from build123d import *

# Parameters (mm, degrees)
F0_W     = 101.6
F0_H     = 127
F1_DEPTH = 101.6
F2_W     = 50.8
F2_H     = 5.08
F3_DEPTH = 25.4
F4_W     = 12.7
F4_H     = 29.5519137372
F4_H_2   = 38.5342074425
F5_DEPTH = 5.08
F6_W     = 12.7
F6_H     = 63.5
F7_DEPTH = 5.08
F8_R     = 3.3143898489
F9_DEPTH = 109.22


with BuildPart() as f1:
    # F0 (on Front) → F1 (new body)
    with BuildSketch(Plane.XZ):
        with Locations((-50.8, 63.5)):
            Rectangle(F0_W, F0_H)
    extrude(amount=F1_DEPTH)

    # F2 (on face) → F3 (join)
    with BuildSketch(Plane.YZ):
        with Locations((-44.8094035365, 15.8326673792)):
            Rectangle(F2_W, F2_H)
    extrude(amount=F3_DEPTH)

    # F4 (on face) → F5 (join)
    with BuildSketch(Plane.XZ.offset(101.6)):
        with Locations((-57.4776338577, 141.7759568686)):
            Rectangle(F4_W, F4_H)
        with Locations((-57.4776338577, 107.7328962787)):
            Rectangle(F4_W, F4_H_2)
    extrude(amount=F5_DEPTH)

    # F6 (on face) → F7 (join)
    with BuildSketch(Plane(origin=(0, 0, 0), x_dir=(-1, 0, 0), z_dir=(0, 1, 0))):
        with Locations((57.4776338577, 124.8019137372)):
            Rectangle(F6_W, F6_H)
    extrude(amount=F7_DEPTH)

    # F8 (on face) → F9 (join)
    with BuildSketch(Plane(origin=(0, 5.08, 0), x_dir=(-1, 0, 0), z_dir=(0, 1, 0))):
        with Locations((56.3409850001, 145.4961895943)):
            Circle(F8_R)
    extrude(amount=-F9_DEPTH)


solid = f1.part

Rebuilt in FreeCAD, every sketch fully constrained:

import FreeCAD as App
import Part
import Sketcher
from FreeCAD import Vector
Q = App.Units.Quantity

doc = App.newDocument("Part")
body = doc.addObject("PartDesign::Body", "Body")

# Sketch on XZ plane
sketch1 = body.newObject("Sketcher::SketchObject", "Sketch")
sketch1.AttachmentSupport = (doc.getObject("XZ_Plane"), [""])
sketch1.MapMode = "FlatFace"
sketch1.addGeometry([
    Part.LineSegment(Vector(-101.6, 127, 0), Vector(-101.6, 0, 0)),
    Part.LineSegment(Vector(-101.6, 0, 0), Vector(0, 0, 0)),
    Part.LineSegment(Vector(0, 0, 0), Vector(0, 127, 0)),
    Part.LineSegment(Vector(0, 127, 0), Vector(-101.6, 127, 0)),
], False)
sketch1.addConstraint([
    Sketcher.Constraint("Coincident", 0, 2, 1, 1),
    Sketcher.Constraint("Coincident", 1, 2, 2, 1),
    Sketcher.Constraint("Coincident", 2, 2, 3, 1),
    Sketcher.Constraint("Coincident", 3, 2, 0, 1),
    Sketcher.Constraint("Vertical", 0),
    Sketcher.Constraint("Horizontal", 1),
    Sketcher.Constraint("Vertical", 2),
    Sketcher.Constraint("Horizontal", 3),
    Sketcher.Constraint("Coincident", 1, 2, -1, 1),
    Sketcher.Constraint("DistanceX", 1, 1, 1, 2, Q("4 in")),
    Sketcher.Constraint("DistanceY", 0, 2, 0, 1, Q("5 in")),
])
pad1 = body.newObject("PartDesign::Pad", "Pad")
pad1.Profile = sketch1
pad1.Length = Q("4 in")

# Sketch on YZ plane
sketch2 = body.newObject("Sketcher::SketchObject", "Sketch001")
sketch2.AttachmentSupport = (doc.getObject("YZ_Plane"), [""])
sketch2.MapMode = "FlatFace"
sketch2.addGeometry([
    Part.LineSegment(Vector(-70.209404, 18.372667, 0), Vector(-70.209404, 13.292667, 0)),
    Part.LineSegment(Vector(-70.209404, 13.292667, 0), Vector(-19.409404, 13.292667, 0)),
    Part.LineSegment(Vector(-19.409404, 13.292667, 0), Vector(-19.409404, 18.372667, 0)),
    Part.LineSegment(Vector(-19.409404, 18.372667, 0), Vector(-70.209404, 18.372667, 0)),
], False)
sketch2.addConstraint([
    Sketcher.Constraint("Coincident", 0, 2, 1, 1),
    Sketcher.Constraint("Coincident", 1, 2, 2, 1),
    Sketcher.Constraint("Coincident", 2, 2, 3, 1),
    Sketcher.Constraint("Coincident", 3, 2, 0, 1),
    Sketcher.Constraint("Vertical", 0),
    Sketcher.Constraint("Horizontal", 1),
    Sketcher.Constraint("Vertical", 2),
    Sketcher.Constraint("Horizontal", 3),
    Sketcher.Constraint("DistanceX", 1, 1, 1, 2, Q("2 in")),
    Sketcher.Constraint("DistanceY", 0, 2, 0, 1, Q("0.2 in")),
    Sketcher.Constraint("DistanceX", 0, 2, -1, 1, 70.209404),
    Sketcher.Constraint("DistanceY", -1, 1, 0, 2, 13.292667),
])
pad2 = body.newObject("PartDesign::Pad", "Pad001")
pad2.Profile = sketch2
pad2.Length = Q("1 in")

# Sketch on XZ plane
sketch3 = body.newObject("Sketcher::SketchObject", "Sketch002")
sketch3.AttachmentSupport = (doc.getObject("XZ_Plane"), [""])
sketch3.MapMode = "FlatFace"
sketch3.AttachmentOffset = App.Placement(Vector(0, 0, 4 * 25.4), App.Rotation())
sketch3.addGeometry([
    Part.LineSegment(Vector(-63.827634, 156.551914, 0), Vector(-63.827634, 88.465793, 0)),
    Part.LineSegment(Vector(-63.827634, 88.465793, 0), Vector(-51.127634, 88.465793, 0)),
    Part.LineSegment(Vector(-51.127634, 88.465793, 0), Vector(-51.127634, 156.551914, 0)),
    Part.LineSegment(Vector(-51.127634, 156.551914, 0), Vector(-63.827634, 156.551914, 0)),
], False)
sketch3.addConstraint([
    Sketcher.Constraint("Coincident", 0, 2, 1, 1),
    Sketcher.Constraint("Coincident", 1, 2, 2, 1),
    Sketcher.Constraint("Coincident", 2, 2, 3, 1),
    Sketcher.Constraint("Coincident", 3, 2, 0, 1),
    Sketcher.Constraint("Vertical", 0),
    Sketcher.Constraint("Horizontal", 1),
    Sketcher.Constraint("Vertical", 2),
    Sketcher.Constraint("Horizontal", 3),
    Sketcher.Constraint("DistanceX", 1, 1, 1, 2, Q("0.5 in")),
    Sketcher.Constraint("DistanceY", 0, 2, 0, 1, 68.086121),
    Sketcher.Constraint("DistanceX", 0, 2, -1, 1, 63.827634),
    Sketcher.Constraint("DistanceY", -1, 1, 0, 2, 88.465793),
])
pad3 = body.newObject("PartDesign::Pad", "Pad002")
pad3.Profile = sketch3
pad3.Length = Q("0.2 in")

# Sketch on XZ plane
sketch4 = body.newObject("Sketcher::SketchObject", "Sketch003")
sketch4.AttachmentSupport = (doc.getObject("XZ_Plane"), [""])
sketch4.MapMode = "FlatFace"
sketch4.addGeometry([
    Part.LineSegment(Vector(-51.127634, 156.551914, 0), Vector(-51.127634, 93.051914, 0)),
    Part.LineSegment(Vector(-51.127634, 93.051914, 0), Vector(-63.827634, 93.051914, 0)),
    Part.LineSegment(Vector(-63.827634, 93.051914, 0), Vector(-63.827634, 156.551914, 0)),
    Part.LineSegment(Vector(-63.827634, 156.551914, 0), Vector(-51.127634, 156.551914, 0)),
], False)
sketch4.addConstraint([
    Sketcher.Constraint("Coincident", 0, 2, 1, 1),
    Sketcher.Constraint("Coincident", 1, 2, 2, 1),
    Sketcher.Constraint("Coincident", 2, 2, 3, 1),
    Sketcher.Constraint("Coincident", 3, 2, 0, 1),
    Sketcher.Constraint("Vertical", 0),
    Sketcher.Constraint("Horizontal", 1),
    Sketcher.Constraint("Vertical", 2),
    Sketcher.Constraint("Horizontal", 3),
    Sketcher.Constraint("DistanceX", 1, 2, 1, 1, Q("0.5 in")),
    Sketcher.Constraint("DistanceY", 0, 2, 0, 1, Q("2.5 in")),
    Sketcher.Constraint("DistanceX", 0, 2, -1, 1, 51.127634),
    Sketcher.Constraint("DistanceY", -1, 1, 0, 2, 93.051914),
])
pad4 = body.newObject("PartDesign::Pad", "Pad003")
pad4.Profile = sketch4
pad4.Length = Q("0.2 in")
pad4.Reversed = True

# Sketch on XZ plane
sketch5 = body.newObject("Sketcher::SketchObject", "Sketch004")
sketch5.AttachmentSupport = (doc.getObject("XZ_Plane"), [""])
sketch5.MapMode = "FlatFace"
sketch5.AttachmentOffset = App.Placement(Vector(0, 0, -0.2 * 25.4), App.Rotation())
sketch5.addGeometry(Part.Circle(Vector(-56.340985, 145.49619, 0), Vector(0, 0, 1), 3.31439), False)
sketch5.addConstraint([
    Sketcher.Constraint("Diameter", 0, 6.62878),
    Sketcher.Constraint("DistanceY", -1, 1, 0, 3, 145.49619),
    Sketcher.Constraint("DistanceX", 0, 3, -1, 1, 56.340985),
])
pad5 = body.newObject("PartDesign::Pad", "Pad004")
pad5.Profile = sketch5
pad5.Length = Q("4.3 in")

doc.recompute()
